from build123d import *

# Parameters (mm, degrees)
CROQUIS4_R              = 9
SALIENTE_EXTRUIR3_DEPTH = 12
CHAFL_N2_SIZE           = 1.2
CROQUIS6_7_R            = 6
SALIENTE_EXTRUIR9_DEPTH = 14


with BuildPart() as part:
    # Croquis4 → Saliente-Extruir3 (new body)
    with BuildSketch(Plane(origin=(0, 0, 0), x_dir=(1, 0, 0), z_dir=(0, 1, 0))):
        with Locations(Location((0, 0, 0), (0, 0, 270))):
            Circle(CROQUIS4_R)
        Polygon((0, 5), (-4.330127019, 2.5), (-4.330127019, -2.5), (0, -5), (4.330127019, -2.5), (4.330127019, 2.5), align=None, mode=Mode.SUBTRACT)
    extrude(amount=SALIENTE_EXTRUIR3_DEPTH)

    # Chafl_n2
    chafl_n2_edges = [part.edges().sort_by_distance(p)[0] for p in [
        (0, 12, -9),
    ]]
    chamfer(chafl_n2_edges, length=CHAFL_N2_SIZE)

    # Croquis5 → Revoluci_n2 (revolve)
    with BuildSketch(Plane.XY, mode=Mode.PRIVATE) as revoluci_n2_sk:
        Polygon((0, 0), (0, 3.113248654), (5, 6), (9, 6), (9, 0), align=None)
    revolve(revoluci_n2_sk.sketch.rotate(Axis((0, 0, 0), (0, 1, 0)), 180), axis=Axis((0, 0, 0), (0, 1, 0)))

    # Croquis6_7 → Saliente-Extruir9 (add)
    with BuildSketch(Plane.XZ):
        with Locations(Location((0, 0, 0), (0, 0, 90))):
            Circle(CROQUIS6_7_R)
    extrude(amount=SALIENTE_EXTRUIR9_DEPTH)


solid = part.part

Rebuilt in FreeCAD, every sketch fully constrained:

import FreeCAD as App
import Part
import Sketcher

V = App.Vector
Q = App.Units.Quantity


def edges_at(feature, points):
    """Names of the edges that pass closest to the given points."""
    edges = feature.Shape.Edges
    near = lambda p: min(range(len(edges)), key=lambda i: edges[i].distToShape(Part.Vertex(*p))[0])
    return sorted({f"Edge{near(p) + 1}" for p in points})

doc = App.newDocument("Part")
body = doc.addObject("PartDesign::Body", "Body")

sketch1 = body.newObject("Sketcher::SketchObject", "Sketch")
sketch1.AttachmentSupport = (doc.getObject("XZ_Plane"), [""])
sketch1.MapMode = "FlatFace"
sketch1.addGeometry([
    Part.Circle(V(0, 0, 0), V(0, 0, 1), 9),
    Part.LineSegment(V(-4.330127, -2.5, 0), V(0, -5, 0)),
    Part.LineSegment(V(0, -5, 0), V(4.330127, -2.5, 0)),
    Part.LineSegment(V(4.330127, -2.5, 0), V(4.330127, 2.5, 0)),
    Part.LineSegment(V(4.330127, 2.5, 0), V(0, 5, 0)),
    Part.LineSegment(V(0, 5, 0), V(-4.330127, 2.5, 0)),
    Part.LineSegment(V(-4.330127, 2.5, 0), V(-4.330127, -2.5, 0)),
], False)
sketch1.addConstraint([
    Sketcher.Constraint("Coincident", 1, 2, 2, 1),
    Sketcher.Constraint("Coincident", 2, 2, 3, 1),
    Sketcher.Constraint("Coincident", 3, 2, 4, 1),
    Sketcher.Constraint("Coincident", 4, 2, 5, 1),
    Sketcher.Constraint("Coincident", 5, 2, 6, 1),
    Sketcher.Constraint("Coincident", 6, 2, 1, 1),
    Sketcher.Constraint("Vertical", 3),
    Sketcher.Constraint("Vertical", 6),
    Sketcher.Constraint("Coincident", 0, 3, -1, 1),
    Sketcher.Constraint("Symmetric", 1, 2, 4, 2, -1, 1),
    Sketcher.Constraint("Symmetric", 2, 2, 5, 2, -1, 1),
    Sketcher.Constraint("PointOnObject", 1, 2, -2),
    Sketcher.Constraint("Parallel", 1, 4),
    Sketcher.Constraint("Horizontal", 3, 2, 5, 2),
    Sketcher.Constraint("Diameter", 0, Q("18 mm")),
    Sketcher.Constraint("DistanceY", 3, 1, 3, 2, Q("5 mm")),
    Sketcher.Constraint("Angle", 1, Q("-30 deg")),
    Sketcher.Constraint("Distance", 1, Q("5 mm")),
])
pad1 = body.newObject("PartDesign::Pad", "Pad")
pad1.Profile = sketch1
pad1.Length = 12
pad1.Reversed = True
doc.recompute()

chamfer = body.newObject("PartDesign::Chamfer", "Chamfer")
chamfer.Base = (pad1, edges_at(pad1, [(0, 12, -9)]))
chamfer.Size = 1.2

sketch2 = body.newObject("Sketcher::SketchObject", "Sketch001")
sketch2.AttachmentSupport = (doc.getObject("XY_Plane"), [""])
sketch2.MapMode = "FlatFace"
sketch2.addGeometry([
    Part.LineSegment(V(0, 3.113249, 0), V(0, 0, 0)),
    Part.LineSegment(V(0, 0, 0), V(9, 0, 0)),
    Part.LineSegment(V(9, 0, 0), V(9, 6, 0)),
    Part.LineSegment(V(9, 6, 0), V(5, 6, 0)),
    Part.LineSegment(V(5, 6, 0), V(0, 3.113249, 0)),
], False)
sketch2.addConstraint([
    Sketcher.Constraint("Coincident", 0, 2, 1, 1),
    Sketcher.Constraint("Coincident", 1, 2, 2, 1),
    Sketcher.Constraint("Coincident", 2, 2, 3, 1),
    Sketcher.Constraint("Coincident", 3, 2, 4, 1),
    Sketcher.Constraint("Coincident", 4, 2, 0, 1),
    Sketcher.Constraint("Vertical", 0),
    Sketcher.Constraint("Horizontal", 1),
    Sketcher.Constraint("Vertical", 2),
    Sketcher.Constraint("Horizontal", 3),
    Sketcher.Constraint("Coincident", 0, 2, -1, 1),
    Sketcher.Constraint("DistanceX", 1, 1, 1, 2, Q("9 mm")),
    Sketcher.Constraint("DistanceX", 3, 2, 3, 1, Q("4 mm")),
    Sketcher.Constraint("DistanceY", 2, 1, 2, 2, Q("6 mm")),
    Sketcher.Constraint("Angle", 4, Q("-150 deg")),
])
revolution = body.newObject("PartDesign::Revolution", "Revolution")
revolution.Profile = sketch2
revolution.ReferenceAxis = (sketch2, ["V_Axis"])
revolution.Angle = 360

sketch3 = body.newObject("Sketcher::SketchObject", "Sketch002")
sketch3.AttachmentSupport = (doc.getObject("XZ_Plane"), [""])
sketch3.MapMode = "FlatFace"
sketch3.addGeometry(Part.Circle(V(0, 0, 0), V(0, 0, 1), 6), False)
sketch3.addConstraint([
    Sketcher.Constraint("Coincident", 0, 3, -1, 1),
    Sketcher.Constraint("Diameter", 0, Q("12 mm")),
])
pad2 = body.newObject("PartDesign::Pad", "Pad001")
pad2.Profile = sketch3
pad2.Length = 14

doc.recompute()
